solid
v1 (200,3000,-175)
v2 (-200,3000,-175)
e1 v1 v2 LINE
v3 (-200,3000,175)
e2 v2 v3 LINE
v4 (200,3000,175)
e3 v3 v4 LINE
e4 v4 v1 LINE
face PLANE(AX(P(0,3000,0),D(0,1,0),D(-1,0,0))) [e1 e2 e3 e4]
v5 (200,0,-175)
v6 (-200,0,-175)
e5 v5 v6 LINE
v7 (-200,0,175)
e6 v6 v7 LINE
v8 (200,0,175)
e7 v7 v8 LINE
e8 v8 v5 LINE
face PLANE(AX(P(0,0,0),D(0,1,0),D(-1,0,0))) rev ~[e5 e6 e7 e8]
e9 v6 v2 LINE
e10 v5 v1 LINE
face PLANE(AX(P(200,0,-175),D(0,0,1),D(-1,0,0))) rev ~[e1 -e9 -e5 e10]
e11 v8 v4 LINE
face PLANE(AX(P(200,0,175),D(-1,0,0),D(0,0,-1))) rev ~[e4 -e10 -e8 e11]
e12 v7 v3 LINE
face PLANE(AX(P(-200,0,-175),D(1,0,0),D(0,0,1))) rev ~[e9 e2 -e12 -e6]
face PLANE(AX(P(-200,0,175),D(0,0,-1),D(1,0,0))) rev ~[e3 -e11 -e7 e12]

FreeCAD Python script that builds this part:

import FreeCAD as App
import Part
import Sketcher
from FreeCAD import Vector
Q = App.Units.Quantity

doc = App.newDocument("Part")
body = doc.addObject("PartDesign::Body", "Body")

sketch1 = body.newObject("Sketcher::SketchObject", "Sketch")
sketch1.AttachmentSupport = (doc.getObject("XZ_Plane"), [""])
sketch1.MapMode = "FlatFace"
sketch1.addGeometry([
    Part.LineSegment(Vector(-200, -175, 0), Vector(-200, 175, 0)),
    Part.LineSegment(Vector(-200, 175, 0), Vector(200, 175, 0)),
    Part.LineSegment(Vector(200, 175, 0), Vector(200, -175, 0)),
    Part.LineSegment(Vector(200, -175, 0), Vector(-200, -175, 0)),
], False)
sketch1.addConstraint([
    Sketcher.Constraint("Coincident", 0, 2, 1, 1),
    Sketcher.Constraint("Coincident", 1, 2, 2, 1),
    Sketcher.Constraint("Coincident", 2, 2, 3, 1),
    Sketcher.Constraint("Coincident", 3, 2, 0, 1),
    Sketcher.Constraint("Vertical", 0),
    Sketcher.Constraint("Horizontal", 1),
    Sketcher.Constraint("Vertical", 2),
    Sketcher.Constraint("Horizontal", 3),
    Sketcher.Constraint("Symmetric", 0, 2, 2, 2, -1, 1),
    Sketcher.Constraint("DistanceX", 1, 1, 1, 2, Q("400 mm")),
    Sketcher.Constraint("DistanceY", 0, 1, 0, 2, Q("350 mm")),
])
pad1 = body.newObject("PartDesign::Pad", "Pad")
pad1.Profile = sketch1
pad1.Length = 3000
pad1.Reversed = True

doc.recompute()
